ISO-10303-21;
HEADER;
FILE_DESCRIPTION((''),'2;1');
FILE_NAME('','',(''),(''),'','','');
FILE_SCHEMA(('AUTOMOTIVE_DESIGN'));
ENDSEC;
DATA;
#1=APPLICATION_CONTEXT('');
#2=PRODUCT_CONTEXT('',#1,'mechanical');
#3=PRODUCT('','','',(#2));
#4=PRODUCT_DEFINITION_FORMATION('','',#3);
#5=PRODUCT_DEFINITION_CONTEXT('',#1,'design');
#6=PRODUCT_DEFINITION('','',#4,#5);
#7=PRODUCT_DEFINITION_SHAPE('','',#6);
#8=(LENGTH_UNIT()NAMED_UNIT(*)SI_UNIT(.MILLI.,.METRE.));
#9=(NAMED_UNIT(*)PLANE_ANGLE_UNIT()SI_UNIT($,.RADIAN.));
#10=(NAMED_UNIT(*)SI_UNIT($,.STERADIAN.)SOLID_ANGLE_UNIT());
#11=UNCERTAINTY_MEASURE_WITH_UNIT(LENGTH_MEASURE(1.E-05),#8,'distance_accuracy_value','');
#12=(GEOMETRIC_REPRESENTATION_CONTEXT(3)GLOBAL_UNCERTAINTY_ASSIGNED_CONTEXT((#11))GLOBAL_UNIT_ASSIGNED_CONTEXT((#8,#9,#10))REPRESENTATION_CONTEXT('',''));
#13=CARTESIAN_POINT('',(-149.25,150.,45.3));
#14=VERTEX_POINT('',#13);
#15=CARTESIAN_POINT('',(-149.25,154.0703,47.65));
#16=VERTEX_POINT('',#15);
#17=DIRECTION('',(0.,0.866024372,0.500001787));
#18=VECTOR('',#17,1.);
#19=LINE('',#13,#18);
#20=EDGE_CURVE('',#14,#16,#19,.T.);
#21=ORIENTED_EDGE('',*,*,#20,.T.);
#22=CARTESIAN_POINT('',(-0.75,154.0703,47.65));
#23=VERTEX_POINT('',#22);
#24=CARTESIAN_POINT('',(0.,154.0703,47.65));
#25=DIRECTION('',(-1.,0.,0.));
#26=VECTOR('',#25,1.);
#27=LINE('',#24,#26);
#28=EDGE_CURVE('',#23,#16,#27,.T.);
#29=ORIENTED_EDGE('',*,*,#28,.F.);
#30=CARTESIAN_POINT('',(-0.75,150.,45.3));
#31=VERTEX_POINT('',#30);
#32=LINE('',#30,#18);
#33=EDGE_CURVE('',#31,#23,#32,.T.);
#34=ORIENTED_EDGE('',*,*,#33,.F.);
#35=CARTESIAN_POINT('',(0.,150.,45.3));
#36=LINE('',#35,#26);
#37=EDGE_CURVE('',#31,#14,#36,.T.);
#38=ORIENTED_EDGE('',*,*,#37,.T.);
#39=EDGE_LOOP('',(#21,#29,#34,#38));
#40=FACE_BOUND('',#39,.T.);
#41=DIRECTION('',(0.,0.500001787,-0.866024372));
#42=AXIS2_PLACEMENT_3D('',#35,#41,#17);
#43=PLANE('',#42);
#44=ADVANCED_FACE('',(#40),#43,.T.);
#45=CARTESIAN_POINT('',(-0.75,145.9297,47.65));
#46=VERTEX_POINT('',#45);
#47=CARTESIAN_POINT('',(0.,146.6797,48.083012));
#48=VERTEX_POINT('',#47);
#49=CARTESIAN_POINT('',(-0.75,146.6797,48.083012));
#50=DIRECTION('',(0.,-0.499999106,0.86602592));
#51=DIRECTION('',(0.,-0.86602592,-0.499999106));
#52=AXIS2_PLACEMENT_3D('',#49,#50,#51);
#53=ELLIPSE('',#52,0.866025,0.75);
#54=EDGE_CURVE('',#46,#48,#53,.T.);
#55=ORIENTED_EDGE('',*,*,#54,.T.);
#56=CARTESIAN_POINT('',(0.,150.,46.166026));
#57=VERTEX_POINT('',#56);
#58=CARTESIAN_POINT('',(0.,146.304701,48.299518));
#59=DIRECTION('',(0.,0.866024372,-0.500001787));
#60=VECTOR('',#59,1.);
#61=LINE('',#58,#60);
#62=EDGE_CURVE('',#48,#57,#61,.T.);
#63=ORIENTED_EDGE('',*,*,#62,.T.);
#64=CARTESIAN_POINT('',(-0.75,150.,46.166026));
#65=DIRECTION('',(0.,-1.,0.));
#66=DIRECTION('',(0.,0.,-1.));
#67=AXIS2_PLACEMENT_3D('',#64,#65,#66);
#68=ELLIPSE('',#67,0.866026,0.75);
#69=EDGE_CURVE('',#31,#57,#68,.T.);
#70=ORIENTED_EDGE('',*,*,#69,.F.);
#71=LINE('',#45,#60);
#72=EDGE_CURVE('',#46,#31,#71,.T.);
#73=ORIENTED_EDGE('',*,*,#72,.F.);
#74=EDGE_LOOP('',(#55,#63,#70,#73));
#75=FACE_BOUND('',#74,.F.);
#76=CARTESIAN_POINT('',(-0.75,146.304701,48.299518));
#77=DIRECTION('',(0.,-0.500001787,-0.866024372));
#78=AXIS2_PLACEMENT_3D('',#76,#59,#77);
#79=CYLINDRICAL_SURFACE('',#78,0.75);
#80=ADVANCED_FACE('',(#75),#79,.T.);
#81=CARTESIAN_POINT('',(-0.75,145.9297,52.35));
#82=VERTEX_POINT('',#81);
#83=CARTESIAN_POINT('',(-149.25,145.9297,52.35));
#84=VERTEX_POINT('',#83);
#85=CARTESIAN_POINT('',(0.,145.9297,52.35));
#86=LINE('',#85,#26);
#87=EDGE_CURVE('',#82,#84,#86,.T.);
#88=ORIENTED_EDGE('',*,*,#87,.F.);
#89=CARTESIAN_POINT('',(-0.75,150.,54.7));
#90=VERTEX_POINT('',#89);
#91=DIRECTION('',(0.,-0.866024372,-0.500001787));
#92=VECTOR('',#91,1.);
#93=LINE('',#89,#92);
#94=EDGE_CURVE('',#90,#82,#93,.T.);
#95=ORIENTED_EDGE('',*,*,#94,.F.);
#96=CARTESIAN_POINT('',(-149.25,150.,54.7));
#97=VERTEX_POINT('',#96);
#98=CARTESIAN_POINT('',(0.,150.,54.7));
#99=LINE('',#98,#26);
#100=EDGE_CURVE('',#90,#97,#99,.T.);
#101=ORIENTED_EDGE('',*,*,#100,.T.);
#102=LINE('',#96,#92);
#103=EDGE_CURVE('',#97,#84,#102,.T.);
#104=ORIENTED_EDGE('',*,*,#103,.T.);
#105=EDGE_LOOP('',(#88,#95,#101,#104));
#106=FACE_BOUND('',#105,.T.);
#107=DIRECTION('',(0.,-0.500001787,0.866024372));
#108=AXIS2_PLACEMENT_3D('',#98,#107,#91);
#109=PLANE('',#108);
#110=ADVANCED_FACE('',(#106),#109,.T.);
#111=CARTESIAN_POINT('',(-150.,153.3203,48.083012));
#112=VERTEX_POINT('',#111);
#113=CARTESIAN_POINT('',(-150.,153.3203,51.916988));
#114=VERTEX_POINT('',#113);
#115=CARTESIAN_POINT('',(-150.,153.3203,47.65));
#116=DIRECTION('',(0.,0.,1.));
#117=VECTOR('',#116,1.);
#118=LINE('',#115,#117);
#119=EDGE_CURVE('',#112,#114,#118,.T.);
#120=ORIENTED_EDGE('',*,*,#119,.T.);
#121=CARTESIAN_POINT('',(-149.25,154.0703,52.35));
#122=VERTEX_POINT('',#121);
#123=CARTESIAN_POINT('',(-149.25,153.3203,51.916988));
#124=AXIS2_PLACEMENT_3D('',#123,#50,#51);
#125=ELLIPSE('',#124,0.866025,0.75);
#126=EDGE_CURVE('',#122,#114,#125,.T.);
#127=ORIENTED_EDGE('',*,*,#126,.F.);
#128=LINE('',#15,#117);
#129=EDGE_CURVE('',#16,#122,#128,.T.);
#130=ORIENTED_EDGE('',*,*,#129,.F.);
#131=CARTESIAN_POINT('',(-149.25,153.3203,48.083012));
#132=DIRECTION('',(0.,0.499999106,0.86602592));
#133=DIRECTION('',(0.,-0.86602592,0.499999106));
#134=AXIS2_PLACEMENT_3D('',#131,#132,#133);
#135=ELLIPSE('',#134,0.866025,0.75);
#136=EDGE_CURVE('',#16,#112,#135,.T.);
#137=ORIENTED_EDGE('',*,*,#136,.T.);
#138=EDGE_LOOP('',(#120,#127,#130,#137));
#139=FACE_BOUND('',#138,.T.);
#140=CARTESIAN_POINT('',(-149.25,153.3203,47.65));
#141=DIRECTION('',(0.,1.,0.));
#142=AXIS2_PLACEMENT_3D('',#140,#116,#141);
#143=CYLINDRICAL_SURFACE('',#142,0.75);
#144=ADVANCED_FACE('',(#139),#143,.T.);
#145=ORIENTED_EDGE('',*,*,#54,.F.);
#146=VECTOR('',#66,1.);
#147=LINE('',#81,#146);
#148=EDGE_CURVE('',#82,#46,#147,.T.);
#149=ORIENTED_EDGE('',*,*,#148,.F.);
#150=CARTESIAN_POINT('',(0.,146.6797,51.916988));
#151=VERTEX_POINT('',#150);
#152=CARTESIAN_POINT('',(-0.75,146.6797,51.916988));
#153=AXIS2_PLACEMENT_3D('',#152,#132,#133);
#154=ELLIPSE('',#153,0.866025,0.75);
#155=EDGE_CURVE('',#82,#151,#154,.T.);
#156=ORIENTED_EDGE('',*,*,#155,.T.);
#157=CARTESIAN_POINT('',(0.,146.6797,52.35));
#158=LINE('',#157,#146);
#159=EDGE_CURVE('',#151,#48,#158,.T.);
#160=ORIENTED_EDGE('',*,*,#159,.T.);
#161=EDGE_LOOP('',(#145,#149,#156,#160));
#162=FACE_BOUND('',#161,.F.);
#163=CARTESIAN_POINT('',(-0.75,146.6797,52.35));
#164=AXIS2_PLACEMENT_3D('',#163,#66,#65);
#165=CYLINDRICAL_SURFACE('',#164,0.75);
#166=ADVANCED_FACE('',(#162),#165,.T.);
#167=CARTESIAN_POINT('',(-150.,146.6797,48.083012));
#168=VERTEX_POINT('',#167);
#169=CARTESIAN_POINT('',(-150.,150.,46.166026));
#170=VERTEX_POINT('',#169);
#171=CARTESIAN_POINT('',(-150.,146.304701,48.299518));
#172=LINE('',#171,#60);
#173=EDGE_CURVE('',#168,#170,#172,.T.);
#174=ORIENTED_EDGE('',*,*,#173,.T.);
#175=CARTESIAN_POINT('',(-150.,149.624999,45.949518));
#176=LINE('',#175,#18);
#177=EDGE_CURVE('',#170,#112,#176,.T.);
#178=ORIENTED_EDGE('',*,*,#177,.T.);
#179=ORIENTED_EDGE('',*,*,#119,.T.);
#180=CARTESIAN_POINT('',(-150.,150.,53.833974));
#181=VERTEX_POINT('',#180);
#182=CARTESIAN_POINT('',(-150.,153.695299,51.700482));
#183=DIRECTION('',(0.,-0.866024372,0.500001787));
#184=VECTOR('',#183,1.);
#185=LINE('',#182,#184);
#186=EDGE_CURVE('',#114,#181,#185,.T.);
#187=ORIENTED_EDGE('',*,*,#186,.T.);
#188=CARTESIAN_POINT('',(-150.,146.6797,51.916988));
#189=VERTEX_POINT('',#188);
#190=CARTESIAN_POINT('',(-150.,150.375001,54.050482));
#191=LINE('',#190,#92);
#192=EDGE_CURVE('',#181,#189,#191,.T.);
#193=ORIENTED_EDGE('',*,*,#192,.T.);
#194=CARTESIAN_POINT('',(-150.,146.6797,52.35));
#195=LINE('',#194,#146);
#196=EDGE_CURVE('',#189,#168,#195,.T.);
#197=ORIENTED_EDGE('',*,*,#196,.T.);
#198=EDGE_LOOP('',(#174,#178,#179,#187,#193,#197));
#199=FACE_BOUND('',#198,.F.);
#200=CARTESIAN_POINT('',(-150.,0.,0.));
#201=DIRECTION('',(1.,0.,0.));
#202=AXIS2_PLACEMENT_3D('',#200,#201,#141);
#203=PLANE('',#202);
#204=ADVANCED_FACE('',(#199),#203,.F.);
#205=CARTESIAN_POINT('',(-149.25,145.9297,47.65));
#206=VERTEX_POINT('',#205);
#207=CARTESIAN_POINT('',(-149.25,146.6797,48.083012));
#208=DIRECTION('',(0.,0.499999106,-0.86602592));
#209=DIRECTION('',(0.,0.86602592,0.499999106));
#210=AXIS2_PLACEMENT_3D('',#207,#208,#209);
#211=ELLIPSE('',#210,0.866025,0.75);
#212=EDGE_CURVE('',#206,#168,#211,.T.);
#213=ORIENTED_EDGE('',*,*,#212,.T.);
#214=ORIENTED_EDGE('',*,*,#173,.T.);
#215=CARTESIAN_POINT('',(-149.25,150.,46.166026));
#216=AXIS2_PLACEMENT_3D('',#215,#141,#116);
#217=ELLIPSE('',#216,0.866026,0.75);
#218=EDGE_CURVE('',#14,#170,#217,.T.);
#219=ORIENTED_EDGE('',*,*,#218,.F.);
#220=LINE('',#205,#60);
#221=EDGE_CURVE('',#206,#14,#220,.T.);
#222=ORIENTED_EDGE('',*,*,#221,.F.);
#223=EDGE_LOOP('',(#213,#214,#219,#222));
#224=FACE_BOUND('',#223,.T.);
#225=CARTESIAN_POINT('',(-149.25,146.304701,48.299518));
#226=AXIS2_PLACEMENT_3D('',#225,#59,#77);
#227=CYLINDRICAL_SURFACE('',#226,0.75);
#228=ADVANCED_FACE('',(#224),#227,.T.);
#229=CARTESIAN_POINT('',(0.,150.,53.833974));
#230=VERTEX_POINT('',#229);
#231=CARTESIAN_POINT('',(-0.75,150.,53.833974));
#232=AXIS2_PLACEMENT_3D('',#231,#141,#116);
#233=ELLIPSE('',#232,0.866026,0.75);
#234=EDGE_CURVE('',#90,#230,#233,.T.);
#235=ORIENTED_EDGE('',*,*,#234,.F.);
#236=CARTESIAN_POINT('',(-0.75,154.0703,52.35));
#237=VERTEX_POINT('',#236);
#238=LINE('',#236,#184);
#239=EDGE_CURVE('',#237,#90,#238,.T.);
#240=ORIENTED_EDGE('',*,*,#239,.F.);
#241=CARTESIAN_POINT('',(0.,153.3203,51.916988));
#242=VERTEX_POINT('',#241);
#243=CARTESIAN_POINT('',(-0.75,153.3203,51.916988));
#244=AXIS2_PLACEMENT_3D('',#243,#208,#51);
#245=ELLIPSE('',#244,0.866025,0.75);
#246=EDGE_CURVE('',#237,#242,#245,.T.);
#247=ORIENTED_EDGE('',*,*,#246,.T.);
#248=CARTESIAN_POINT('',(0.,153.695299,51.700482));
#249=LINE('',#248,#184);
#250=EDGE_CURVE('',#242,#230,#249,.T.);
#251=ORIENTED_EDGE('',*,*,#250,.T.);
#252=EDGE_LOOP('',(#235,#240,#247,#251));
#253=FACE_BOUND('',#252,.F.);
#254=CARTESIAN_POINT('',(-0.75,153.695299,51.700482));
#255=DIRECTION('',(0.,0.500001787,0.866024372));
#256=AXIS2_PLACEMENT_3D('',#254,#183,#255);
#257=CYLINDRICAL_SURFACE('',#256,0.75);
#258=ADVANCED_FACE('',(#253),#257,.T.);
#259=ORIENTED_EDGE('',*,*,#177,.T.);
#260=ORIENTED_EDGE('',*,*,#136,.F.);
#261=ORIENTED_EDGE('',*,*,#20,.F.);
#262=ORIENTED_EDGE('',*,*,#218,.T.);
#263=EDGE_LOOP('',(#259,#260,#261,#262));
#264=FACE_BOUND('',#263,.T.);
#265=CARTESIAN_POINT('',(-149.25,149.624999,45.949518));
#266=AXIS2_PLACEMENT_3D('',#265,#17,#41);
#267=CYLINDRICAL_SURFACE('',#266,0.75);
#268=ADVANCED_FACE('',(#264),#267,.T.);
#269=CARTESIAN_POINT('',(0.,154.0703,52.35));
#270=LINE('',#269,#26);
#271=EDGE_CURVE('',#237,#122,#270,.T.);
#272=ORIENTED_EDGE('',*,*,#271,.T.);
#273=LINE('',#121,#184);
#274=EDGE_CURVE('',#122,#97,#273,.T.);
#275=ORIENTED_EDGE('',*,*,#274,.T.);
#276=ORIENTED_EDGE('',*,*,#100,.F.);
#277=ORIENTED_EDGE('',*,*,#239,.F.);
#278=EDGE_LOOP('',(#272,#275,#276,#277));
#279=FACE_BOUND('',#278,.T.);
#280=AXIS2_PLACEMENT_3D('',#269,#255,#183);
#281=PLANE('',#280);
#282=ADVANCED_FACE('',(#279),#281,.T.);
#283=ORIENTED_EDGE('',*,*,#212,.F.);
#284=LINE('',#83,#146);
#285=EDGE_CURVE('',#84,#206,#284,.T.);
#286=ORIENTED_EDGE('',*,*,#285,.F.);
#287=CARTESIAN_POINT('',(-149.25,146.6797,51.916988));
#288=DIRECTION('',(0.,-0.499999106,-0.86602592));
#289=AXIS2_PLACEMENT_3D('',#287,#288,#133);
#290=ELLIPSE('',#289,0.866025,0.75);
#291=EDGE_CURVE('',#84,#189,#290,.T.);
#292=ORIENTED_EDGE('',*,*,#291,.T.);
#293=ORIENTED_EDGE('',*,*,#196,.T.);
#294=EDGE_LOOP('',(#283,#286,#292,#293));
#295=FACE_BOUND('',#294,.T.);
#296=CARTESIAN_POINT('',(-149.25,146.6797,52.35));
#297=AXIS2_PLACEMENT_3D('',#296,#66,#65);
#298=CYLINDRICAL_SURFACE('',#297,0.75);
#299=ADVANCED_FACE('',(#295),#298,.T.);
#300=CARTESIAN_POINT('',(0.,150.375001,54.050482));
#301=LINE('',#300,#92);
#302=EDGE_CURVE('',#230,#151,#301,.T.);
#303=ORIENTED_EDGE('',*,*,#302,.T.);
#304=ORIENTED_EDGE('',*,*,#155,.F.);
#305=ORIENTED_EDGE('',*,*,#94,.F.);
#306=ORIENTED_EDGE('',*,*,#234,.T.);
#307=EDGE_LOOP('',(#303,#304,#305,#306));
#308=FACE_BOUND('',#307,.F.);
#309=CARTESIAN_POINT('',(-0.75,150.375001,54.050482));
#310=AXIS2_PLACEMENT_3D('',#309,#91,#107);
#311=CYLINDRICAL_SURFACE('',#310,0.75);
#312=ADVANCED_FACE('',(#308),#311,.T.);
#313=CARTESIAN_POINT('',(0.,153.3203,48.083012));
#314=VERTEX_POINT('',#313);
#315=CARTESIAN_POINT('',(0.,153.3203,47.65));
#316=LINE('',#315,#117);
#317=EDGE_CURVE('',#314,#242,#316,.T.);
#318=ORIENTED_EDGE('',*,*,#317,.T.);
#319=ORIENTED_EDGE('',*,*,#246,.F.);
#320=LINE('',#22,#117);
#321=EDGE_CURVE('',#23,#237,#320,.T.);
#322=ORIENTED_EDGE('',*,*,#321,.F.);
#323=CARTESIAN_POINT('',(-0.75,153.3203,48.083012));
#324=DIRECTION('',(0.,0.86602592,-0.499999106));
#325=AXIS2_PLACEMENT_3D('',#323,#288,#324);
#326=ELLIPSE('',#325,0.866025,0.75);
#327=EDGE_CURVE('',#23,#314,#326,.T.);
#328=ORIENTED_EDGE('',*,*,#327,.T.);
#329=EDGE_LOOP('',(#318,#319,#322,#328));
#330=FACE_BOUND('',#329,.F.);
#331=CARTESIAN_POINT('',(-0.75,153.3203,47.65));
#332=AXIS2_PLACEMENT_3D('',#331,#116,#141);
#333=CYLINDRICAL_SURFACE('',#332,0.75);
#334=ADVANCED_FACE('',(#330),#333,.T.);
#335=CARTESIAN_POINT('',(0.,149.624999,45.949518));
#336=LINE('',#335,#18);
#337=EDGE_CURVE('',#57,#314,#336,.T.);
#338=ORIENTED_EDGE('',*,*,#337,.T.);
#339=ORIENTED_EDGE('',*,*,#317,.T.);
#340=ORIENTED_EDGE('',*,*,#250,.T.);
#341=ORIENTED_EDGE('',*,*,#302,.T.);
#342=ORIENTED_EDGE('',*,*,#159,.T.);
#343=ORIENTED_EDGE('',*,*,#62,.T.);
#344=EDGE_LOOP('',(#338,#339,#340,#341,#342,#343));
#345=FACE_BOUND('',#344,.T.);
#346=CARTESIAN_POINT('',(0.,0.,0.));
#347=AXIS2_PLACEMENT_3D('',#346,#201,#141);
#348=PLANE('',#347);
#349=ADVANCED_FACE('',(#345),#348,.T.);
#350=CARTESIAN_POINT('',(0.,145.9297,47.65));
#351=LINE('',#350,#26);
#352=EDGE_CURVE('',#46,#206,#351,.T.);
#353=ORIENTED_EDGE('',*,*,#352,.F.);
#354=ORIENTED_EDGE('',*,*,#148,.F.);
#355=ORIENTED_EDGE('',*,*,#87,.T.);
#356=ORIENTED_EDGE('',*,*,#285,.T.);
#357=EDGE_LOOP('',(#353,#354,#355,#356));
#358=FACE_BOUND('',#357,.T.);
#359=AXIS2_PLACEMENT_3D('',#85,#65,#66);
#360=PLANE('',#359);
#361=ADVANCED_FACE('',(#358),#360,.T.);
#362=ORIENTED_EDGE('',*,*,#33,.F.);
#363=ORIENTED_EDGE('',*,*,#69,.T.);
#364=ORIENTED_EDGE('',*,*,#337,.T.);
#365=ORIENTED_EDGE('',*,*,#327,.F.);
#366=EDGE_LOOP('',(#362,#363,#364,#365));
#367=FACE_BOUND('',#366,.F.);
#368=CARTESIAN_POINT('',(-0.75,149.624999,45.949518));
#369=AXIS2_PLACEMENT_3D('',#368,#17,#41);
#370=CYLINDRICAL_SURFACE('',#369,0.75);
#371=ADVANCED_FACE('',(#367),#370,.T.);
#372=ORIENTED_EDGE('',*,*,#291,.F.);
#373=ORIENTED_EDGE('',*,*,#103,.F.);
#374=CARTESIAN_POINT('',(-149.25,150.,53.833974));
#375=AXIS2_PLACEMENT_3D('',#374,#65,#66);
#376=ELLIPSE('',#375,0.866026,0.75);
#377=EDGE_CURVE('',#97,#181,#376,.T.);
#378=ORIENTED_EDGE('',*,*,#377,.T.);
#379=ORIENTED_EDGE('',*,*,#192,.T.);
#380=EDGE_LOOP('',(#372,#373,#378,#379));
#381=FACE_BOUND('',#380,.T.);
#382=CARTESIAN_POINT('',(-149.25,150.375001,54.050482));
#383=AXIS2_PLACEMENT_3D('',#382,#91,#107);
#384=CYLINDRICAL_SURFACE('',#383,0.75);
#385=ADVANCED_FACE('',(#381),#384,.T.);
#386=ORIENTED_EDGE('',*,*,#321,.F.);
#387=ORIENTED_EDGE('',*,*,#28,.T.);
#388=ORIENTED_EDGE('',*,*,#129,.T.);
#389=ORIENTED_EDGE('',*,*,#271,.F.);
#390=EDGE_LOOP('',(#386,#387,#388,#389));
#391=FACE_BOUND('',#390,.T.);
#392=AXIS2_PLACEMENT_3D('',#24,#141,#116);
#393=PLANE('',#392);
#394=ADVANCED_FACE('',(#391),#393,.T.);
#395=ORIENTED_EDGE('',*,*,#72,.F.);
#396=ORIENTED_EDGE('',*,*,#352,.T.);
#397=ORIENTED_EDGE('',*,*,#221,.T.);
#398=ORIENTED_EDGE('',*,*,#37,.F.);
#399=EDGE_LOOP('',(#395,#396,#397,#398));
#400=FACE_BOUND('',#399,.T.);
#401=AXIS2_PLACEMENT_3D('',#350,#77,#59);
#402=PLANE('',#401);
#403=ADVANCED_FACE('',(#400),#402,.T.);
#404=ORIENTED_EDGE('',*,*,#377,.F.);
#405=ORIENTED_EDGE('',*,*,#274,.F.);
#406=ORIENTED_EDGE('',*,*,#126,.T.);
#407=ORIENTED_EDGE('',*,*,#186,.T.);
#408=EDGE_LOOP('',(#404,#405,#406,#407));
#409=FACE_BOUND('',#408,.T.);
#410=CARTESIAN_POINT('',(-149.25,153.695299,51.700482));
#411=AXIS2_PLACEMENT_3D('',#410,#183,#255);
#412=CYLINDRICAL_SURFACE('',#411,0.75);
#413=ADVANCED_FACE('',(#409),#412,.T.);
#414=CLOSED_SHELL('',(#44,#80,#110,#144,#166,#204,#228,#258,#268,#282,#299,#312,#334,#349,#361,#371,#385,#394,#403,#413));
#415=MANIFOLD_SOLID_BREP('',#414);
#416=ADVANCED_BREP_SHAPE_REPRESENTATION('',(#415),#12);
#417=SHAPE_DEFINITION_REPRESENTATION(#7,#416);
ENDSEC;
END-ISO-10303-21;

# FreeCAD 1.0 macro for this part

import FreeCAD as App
import Part
import Sketcher
from FreeCAD import Vector
Q = App.Units.Quantity


def edges_at(feature, points):
    """Names of the edges that pass closest to the given points."""
    edges = feature.Shape.Edges
    near = lambda p: min(range(len(edges)), key=lambda i: edges[i].distToShape(Part.Vertex(*p))[0])
    return sorted({f"Edge{near(p) + 1}" for p in points})


def add_polygon(sketch, points):
    """Adds a closed chain of lines whose ends are joined by coincident constraints."""
    first, n = sketch.GeometryCount, len(points)
    for a, b in zip(points, points[1:] + points[:1]):
        sketch.addGeometry(Part.LineSegment(App.Vector(*a, 0), App.Vector(*b, 0)), False)
    for i in range(n):
        sketch.addConstraint(Sketcher.Constraint("Coincident", first + i, 2, first + (i + 1) % n, 1))

doc = App.newDocument("Part")
params = doc.addObject("Spreadsheet::Sheet", "Params")
for row, (alias, value) in enumerate([
    ("sketch1_height", "4.7 mm"),
    ("sketch1_length", "4.7 mm"),
    ("pad1_length", "150 mm"),
    ("fillet_radius", "0.75 mm"),
], start=1):
    params.set(f"A{row}", alias)
    params.set(f"B{row}", "=" + value)
    params.setAlias(f"B{row}", alias)

body = doc.addObject("PartDesign::Body", "Body")

# Sketch on YZ plane
sketch1 = body.newObject("Sketcher::SketchObject", "Sketch")
sketch1.AttachmentSupport = (doc.getObject("YZ_Plane"), [""])
sketch1.MapMode = "FlatFace"
add_polygon(sketch1, [(145.9297, 47.65), (150, 45.3), (154.0703, 47.65), (154.0703, 52.35), (150, 54.7), (145.9297, 52.35)])  # lines 0-5
sketch1.addConstraint(Sketcher.Constraint("Vertical", 2))
sketch1.addConstraint(Sketcher.Constraint("Vertical", 5))
sketch1.addConstraint(Sketcher.Constraint("Parallel", 0, 3))
sketch1.addConstraint(Sketcher.Constraint("Parallel", 1, 4))
sketch1.addConstraint(Sketcher.Constraint("Horizontal", 2, 2, 4, 2))
sketch1.addConstraint(Sketcher.Constraint("Horizontal", 1, 2, 5, 2))
sketch1.addConstraint(Sketcher.Constraint("Vertical", 0, 2, 3, 2))
sketch1.addConstraint(Sketcher.Constraint("DistanceY", 2, 1, 2, 2, Q("4.7 mm")))
sketch1.addConstraint(Sketcher.Constraint("Distance", 0, Q("4.7 mm")))
sketch1.addConstraint(Sketcher.Constraint("Angle", 0, Q("-30 deg")))
sketch1.addConstraint(Sketcher.Constraint("DistanceX", -1, 1, 0, 2, Q("150 mm")))
sketch1.addConstraint(Sketcher.Constraint("DistanceY", -1, 1, 0, 2, Q("45.3 mm")))
sketch1.setExpression("Constraints[13]", "Params.sketch1_height")
sketch1.setExpression("Constraints[14]", "Params.sketch1_length")
pad1 = body.newObject("PartDesign::Pad", "Pad")
pad1.Profile = sketch1
pad1.setExpression("Length", "Params.pad1_length")
pad1.Reversed = True
doc.recompute()

fillet = body.newObject("PartDesign::Fillet", "Fillet")
fillet.Base = (pad1, edges_at(pad1, [
    (-150, 147.965, 53.525),
    (-150, 152.035, 53.525),
    (-150, 154.07, 50),
    (-150, 152.035, 46.475),
    (-150, 147.965, 46.475),
    (-150, 145.93, 50),
    (0, 152.035, 53.525),
    (0, 147.965, 53.525),
    (0, 145.93, 50),
    (0, 147.965, 46.475),
    (0, 152.035, 46.475),
    (0, 154.07, 50),
]))
fillet.setExpression("Radius", "Params.fillet_radius")

doc.recompute()
